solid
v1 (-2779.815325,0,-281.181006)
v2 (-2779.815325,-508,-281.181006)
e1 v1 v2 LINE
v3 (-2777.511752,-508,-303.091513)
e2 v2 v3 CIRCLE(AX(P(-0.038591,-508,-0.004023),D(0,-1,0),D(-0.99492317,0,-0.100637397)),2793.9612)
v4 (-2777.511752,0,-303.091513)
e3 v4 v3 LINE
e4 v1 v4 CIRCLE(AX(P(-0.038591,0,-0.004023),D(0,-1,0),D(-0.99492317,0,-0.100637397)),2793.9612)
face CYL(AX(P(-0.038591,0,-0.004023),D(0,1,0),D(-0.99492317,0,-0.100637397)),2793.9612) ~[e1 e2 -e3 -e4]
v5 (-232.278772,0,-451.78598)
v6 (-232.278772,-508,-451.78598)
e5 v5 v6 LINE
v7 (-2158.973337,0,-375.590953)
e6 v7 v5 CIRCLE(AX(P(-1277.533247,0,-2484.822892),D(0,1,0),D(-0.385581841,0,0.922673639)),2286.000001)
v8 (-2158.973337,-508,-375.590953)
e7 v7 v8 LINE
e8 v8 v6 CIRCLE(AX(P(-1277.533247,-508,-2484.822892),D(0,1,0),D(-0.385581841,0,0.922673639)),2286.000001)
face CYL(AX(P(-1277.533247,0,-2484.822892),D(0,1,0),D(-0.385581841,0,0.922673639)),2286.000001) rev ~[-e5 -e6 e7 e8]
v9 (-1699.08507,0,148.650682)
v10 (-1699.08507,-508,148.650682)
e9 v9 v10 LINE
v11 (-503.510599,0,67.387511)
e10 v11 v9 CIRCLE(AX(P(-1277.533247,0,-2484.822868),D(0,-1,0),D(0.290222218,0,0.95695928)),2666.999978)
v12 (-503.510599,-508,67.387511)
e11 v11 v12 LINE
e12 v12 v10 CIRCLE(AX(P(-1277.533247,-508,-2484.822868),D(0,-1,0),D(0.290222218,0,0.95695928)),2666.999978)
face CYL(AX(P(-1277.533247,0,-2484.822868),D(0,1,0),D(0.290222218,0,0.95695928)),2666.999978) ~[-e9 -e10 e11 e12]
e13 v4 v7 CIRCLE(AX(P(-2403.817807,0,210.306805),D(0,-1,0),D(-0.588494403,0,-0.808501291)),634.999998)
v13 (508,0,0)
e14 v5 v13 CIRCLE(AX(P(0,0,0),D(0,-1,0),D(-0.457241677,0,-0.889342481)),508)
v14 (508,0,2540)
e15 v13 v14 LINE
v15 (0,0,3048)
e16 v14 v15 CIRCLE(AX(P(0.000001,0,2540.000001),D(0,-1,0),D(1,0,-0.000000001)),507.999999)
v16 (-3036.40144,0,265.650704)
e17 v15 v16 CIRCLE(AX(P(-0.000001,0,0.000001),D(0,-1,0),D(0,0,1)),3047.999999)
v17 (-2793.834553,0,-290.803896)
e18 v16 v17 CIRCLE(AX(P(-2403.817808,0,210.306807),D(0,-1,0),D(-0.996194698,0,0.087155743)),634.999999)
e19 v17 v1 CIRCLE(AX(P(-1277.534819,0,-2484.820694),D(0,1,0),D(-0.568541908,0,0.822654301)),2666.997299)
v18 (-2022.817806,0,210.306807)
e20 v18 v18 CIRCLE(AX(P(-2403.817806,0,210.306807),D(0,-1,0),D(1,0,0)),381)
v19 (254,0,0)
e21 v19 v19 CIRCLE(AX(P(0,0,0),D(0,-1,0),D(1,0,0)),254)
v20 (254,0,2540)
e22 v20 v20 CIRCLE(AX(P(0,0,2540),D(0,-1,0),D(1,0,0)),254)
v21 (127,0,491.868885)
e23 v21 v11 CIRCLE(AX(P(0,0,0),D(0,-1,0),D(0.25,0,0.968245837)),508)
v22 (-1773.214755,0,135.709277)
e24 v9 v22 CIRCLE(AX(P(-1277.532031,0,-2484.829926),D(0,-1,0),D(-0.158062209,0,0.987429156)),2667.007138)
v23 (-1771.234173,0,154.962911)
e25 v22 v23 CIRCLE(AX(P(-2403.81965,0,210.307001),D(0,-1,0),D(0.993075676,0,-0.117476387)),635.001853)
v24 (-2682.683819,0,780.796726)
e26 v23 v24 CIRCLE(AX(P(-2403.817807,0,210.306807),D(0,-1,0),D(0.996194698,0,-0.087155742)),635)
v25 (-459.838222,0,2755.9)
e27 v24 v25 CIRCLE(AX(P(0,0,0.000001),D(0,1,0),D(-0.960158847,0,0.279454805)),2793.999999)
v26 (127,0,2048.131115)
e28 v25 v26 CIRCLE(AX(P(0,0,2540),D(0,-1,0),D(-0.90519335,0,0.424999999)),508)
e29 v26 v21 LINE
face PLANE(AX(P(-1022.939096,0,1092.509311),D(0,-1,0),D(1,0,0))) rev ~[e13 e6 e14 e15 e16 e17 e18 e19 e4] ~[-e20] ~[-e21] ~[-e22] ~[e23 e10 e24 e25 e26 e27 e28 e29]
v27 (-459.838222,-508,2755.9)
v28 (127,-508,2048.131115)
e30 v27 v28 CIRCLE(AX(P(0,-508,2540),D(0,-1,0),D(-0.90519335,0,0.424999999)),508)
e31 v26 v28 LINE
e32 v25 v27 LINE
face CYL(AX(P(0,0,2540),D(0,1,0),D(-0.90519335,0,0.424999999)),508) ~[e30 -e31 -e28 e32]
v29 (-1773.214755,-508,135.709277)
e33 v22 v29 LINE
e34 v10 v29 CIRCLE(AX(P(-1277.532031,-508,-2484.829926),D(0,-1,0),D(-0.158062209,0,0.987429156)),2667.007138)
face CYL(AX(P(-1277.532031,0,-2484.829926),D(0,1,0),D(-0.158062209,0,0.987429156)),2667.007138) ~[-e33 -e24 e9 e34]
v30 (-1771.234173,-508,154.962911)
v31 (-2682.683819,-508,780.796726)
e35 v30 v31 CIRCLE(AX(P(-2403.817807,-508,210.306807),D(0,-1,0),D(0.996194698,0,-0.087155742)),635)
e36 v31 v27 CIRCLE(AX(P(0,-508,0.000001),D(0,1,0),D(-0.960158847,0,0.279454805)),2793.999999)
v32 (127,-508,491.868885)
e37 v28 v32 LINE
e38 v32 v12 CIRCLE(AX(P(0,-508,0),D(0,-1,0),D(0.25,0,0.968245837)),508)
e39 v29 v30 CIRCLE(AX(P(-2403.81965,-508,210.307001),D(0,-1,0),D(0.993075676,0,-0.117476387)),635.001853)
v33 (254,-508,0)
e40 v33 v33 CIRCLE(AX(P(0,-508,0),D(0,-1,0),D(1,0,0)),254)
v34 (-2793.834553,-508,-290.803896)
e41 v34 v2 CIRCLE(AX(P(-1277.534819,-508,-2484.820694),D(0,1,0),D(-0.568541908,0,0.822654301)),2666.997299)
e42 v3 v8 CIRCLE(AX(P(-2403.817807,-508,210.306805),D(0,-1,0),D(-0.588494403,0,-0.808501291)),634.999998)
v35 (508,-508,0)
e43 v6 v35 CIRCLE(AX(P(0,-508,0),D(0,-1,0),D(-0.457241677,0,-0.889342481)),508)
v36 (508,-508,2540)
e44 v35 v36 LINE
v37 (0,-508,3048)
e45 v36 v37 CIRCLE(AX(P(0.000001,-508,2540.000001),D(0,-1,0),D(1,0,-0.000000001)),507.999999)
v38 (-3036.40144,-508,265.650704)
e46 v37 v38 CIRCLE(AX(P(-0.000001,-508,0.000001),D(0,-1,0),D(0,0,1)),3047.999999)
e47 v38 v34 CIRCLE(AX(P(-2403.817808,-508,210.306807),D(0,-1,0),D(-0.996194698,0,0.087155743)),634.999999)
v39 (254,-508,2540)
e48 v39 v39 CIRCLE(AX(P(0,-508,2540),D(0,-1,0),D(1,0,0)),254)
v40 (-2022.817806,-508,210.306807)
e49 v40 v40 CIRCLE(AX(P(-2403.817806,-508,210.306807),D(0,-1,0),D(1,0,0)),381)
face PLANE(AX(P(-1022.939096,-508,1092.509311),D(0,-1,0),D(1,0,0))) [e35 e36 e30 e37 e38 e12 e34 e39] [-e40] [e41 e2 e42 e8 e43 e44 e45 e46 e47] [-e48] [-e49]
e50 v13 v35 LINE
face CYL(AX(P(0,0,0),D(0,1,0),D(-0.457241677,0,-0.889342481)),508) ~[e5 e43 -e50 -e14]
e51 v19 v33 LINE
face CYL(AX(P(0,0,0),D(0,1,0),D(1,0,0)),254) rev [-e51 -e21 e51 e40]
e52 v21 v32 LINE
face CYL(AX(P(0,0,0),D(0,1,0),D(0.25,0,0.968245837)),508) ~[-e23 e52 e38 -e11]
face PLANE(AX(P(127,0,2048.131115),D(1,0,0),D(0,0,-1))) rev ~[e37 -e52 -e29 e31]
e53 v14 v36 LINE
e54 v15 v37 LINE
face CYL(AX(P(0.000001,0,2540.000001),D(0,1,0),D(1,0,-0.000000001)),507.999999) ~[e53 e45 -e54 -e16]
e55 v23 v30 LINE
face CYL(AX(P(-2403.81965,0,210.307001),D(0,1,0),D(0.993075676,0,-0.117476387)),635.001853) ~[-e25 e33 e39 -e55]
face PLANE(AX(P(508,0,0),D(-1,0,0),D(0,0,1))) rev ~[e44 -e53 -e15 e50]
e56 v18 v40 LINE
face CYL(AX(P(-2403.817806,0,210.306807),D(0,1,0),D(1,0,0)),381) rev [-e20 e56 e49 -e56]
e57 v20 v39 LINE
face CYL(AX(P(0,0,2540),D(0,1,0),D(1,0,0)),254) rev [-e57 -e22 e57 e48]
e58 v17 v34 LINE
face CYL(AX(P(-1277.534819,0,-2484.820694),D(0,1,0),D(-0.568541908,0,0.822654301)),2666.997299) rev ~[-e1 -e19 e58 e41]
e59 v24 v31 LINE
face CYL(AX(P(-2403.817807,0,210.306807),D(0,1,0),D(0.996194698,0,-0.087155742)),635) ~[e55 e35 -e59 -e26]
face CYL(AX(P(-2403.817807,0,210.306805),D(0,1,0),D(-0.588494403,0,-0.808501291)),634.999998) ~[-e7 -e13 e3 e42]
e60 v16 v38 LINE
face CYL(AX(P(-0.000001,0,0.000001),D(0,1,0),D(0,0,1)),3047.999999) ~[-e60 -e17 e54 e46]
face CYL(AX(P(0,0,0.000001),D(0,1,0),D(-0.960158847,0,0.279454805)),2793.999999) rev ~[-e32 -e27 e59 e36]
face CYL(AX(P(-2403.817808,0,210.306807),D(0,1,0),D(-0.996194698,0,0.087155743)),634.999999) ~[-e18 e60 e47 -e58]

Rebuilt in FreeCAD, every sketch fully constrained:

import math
import FreeCAD as App
import Part
import Sketcher
from FreeCAD import Vector
Q = App.Units.Quantity

doc = App.newDocument("Part")
body = doc.addObject("PartDesign::Body", "Body")

sketch1 = doc.addObject("Sketcher::SketchObject", "Sketch")
body.addObject(sketch1)
sketch1.AttachmentSupport = (doc.XZ_Plane, [""])
sketch1.MapMode = "FlatFace"
sketch1.addGeometry([
    Part.ArcOfCircle(Part.Circle(Vector(-1277.533247, -2484.822892, 0), Vector(0, 0, 1), 2286.000001), math.radians(62.790739), math.radians(112.679866)),
    Part.ArcOfCircle(Part.Circle(Vector(0, 0, 0), Vector(0, 0, 1), 508), math.radians(-117.209261), math.radians(0)),
    Part.LineSegment(Vector(508, 0, 0), Vector(508, 2540, 0)),
    Part.ArcOfCircle(Part.Circle(Vector(0.000001, 2540.000001, 0), Vector(0, 0, 1), 507.999999), math.radians(0), math.radians(90)),
    Part.ArcOfCircle(Part.Circle(Vector(-0.000001, 0.000001, 0), Vector(0, 0, 1), 3047.999999), math.radians(90), math.radians(175)),
    Part.ArcOfCircle(Part.Circle(Vector(-2403.817808, 210.306807, 0), Vector(0, 0, 1), 634.999999), math.radians(175), math.radians(232.106215)),
    Part.ArcOfCircle(Part.Circle(Vector(-1277.534819, -2484.820694, 0), Vector(0, 0, 1), 2666.997299), math.radians(124.283307), math.radians(124.648611)),
    Part.ArcOfCircle(Part.Circle(Vector(-0.038591, -0.004023, 0), Vector(0, 0, 1), 2793.9612), math.radians(-174.224124), math.radians(-173.772328)),
    Part.ArcOfCircle(Part.Circle(Vector(-2403.817807, 210.306805, 0), Vector(0, 0, 1), 634.999998), math.radians(-126.050239), math.radians(-67.320133)),
    Part.Circle(Vector(-2403.817806, 210.306807, 0), Vector(0, 0, 1), 381),
    Part.Circle(Vector(0, 0, 0), Vector(0, 0, 1), 254),
    Part.ArcOfCircle(Part.Circle(Vector(0, 2540, 0), Vector(0, 0, 1), 508), math.radians(154.849337), math.radians(284.477512)),
    Part.LineSegment(Vector(127, 2048.131115, 0), Vector(127, 491.868885, 0)),
    Part.ArcOfCircle(Part.Circle(Vector(0, 0, 0), Vector(0, 0, 1), 508), math.radians(75.522488), math.radians(172.377098)),
    Part.ArcOfCircle(Part.Circle(Vector(-1277.533247, -2484.822868, 0), Vector(0, 0, 1), 2666.999978), math.radians(73.12874), math.radians(99.094436)),
    Part.ArcOfCircle(Part.Circle(Vector(-1277.532031, -2484.829926, 0), Vector(0, 0, 1), 2667.007138), math.radians(99.094438), math.radians(100.711118)),
    Part.ArcOfCircle(Part.Circle(Vector(-2403.81965, 210.307001, 0), Vector(0, 0, 1), 635.001853), math.radians(-6.74648), math.radians(-5.000003)),
    Part.ArcOfCircle(Part.Circle(Vector(-2403.817807, 210.306807, 0), Vector(0, 0, 1), 635), math.radians(-5), math.radians(116.050239)),
    Part.ArcOfCircle(Part.Circle(Vector(0, 0.000001, 0), Vector(0, 0, 1), 2793.999999), math.radians(99.472872), math.radians(163.772332)),
    Part.Circle(Vector(0, 2540, 0), Vector(0, 0, 1), 254),
], False)
sketch1.addConstraint([
    Sketcher.Constraint("Tangent", 0, 1, 1, 1),
    Sketcher.Constraint("Tangent", 1, 2, 2, 1),
    Sketcher.Constraint("Tangent", 2, 2, 3, 1),
    Sketcher.Constraint("Tangent", 3, 2, 4, 1),
    Sketcher.Constraint("Tangent", 4, 2, 5, 1),
    Sketcher.Constraint("Coincident", 5, 2, 6, 2),
    Sketcher.Constraint("Coincident", 6, 1, 7, 1),
    Sketcher.Constraint("Coincident", 7, 2, 8, 1),
    Sketcher.Constraint("Tangent", 8, 2, 0, 2),
    Sketcher.Constraint("Coincident", 11, 2, 12, 1),
    Sketcher.Constraint("Coincident", 12, 2, 13, 1),
    Sketcher.Constraint("Coincident", 13, 2, 14, 1),
    Sketcher.Constraint("Coincident", 14, 2, 15, 1),
    Sketcher.Constraint("Coincident", 15, 2, 16, 1),
    Sketcher.Constraint("Coincident", 16, 2, 17, 1),
    Sketcher.Constraint("Coincident", 17, 2, 18, 2),
    Sketcher.Constraint("Coincident", 18, 1, 11, 1),
    Sketcher.Constraint("Vertical", 2),
    Sketcher.Constraint("Vertical", 12),
    Sketcher.Constraint("Coincident", 1, 3, -1, 1),
    Sketcher.Constraint("Coincident", 4, 3, -1, 1),
    Sketcher.Constraint("Coincident", 10, 3, -1, 1),
    Sketcher.Constraint("Coincident", 13, 3, -1, 1),
    Sketcher.Constraint("Coincident", 18, 3, -1, 1),
    Sketcher.Constraint("Coincident", 8, 3, 5, 3),
    Sketcher.Constraint("Coincident", 9, 3, 5, 3),
    Sketcher.Constraint("Coincident", 11, 3, 3, 3),
    Sketcher.Constraint("Coincident", 17, 3, 5, 3),
    Sketcher.Constraint("Coincident", 19, 3, 3, 3),
    Sketcher.Constraint("Equal", 1, 3),
    Sketcher.Constraint("Equal", 5, 8),
    Sketcher.Constraint("Equal", 3, 11),
    Sketcher.Constraint("Equal", 11, 13),
    Sketcher.Constraint("Equal", 5, 17),
    Sketcher.Constraint("Equal", 10, 19),
    Sketcher.Constraint("Vertical", 0, 3, 14, 3),
    Sketcher.Constraint("Diameter", 9, Q("30 in")),
    Sketcher.Constraint("Diameter", 10, Q("20 in")),
    Sketcher.Constraint("Radius", 0, Q("90 in")),
    Sketcher.Constraint("Radius", 1, Q("20 in")),
    Sketcher.Constraint("Radius", 4, Q("120 in")),
    Sketcher.Constraint("Radius", 5, Q("25 in")),
    Sketcher.Constraint("Radius", 18, Q("110 in")),
    Sketcher.Constraint("DistanceX", -1, 1, 12, 2, Q("5 in")),
    Sketcher.Constraint("Radius", 6, 2666.997299),
    Sketcher.Constraint("Radius", 7, 2793.9612),
    Sketcher.Constraint("Radius", 15, 2667.007138),
    Sketcher.Constraint("Radius", 14, 2666.999978),
    Sketcher.Constraint("Radius", 16, 635.001853),
    Sketcher.Constraint("DistanceY", -1, 1, 16, 3, 210.307001),
    Sketcher.Constraint("DistanceY", 0, 3, 5, 3, 2695.1297),
    Sketcher.Constraint("DistanceY", 0, 3, 6, 3, 0.002198),
    Sketcher.Constraint("DistanceX", 5, 2, 7, 2, 16.322801),
    Sketcher.Constraint("DistanceX", 6, 3, -1, 1, 1277.534819),
    Sketcher.Constraint("DistanceX", 7, 3, -1, 1, 0.038591),
    Sketcher.Constraint("DistanceY", 14, 3, -1, 1, 2484.822868),
    Sketcher.Constraint("DistanceX", 15, 3, -1, 1, 1277.532031),
    Sketcher.Constraint("DistanceX", 14, 2, -1, 1, 1699.08507),
    Sketcher.Constraint("DistanceY", -1, 1, 16, 2, 154.962911),
])
pad1 = doc.addObject("PartDesign::Pad", "Pad")
body.addObject(pad1)
pad1.Profile = sketch1
pad1.Length = Q("20 in")

doc.recompute()
